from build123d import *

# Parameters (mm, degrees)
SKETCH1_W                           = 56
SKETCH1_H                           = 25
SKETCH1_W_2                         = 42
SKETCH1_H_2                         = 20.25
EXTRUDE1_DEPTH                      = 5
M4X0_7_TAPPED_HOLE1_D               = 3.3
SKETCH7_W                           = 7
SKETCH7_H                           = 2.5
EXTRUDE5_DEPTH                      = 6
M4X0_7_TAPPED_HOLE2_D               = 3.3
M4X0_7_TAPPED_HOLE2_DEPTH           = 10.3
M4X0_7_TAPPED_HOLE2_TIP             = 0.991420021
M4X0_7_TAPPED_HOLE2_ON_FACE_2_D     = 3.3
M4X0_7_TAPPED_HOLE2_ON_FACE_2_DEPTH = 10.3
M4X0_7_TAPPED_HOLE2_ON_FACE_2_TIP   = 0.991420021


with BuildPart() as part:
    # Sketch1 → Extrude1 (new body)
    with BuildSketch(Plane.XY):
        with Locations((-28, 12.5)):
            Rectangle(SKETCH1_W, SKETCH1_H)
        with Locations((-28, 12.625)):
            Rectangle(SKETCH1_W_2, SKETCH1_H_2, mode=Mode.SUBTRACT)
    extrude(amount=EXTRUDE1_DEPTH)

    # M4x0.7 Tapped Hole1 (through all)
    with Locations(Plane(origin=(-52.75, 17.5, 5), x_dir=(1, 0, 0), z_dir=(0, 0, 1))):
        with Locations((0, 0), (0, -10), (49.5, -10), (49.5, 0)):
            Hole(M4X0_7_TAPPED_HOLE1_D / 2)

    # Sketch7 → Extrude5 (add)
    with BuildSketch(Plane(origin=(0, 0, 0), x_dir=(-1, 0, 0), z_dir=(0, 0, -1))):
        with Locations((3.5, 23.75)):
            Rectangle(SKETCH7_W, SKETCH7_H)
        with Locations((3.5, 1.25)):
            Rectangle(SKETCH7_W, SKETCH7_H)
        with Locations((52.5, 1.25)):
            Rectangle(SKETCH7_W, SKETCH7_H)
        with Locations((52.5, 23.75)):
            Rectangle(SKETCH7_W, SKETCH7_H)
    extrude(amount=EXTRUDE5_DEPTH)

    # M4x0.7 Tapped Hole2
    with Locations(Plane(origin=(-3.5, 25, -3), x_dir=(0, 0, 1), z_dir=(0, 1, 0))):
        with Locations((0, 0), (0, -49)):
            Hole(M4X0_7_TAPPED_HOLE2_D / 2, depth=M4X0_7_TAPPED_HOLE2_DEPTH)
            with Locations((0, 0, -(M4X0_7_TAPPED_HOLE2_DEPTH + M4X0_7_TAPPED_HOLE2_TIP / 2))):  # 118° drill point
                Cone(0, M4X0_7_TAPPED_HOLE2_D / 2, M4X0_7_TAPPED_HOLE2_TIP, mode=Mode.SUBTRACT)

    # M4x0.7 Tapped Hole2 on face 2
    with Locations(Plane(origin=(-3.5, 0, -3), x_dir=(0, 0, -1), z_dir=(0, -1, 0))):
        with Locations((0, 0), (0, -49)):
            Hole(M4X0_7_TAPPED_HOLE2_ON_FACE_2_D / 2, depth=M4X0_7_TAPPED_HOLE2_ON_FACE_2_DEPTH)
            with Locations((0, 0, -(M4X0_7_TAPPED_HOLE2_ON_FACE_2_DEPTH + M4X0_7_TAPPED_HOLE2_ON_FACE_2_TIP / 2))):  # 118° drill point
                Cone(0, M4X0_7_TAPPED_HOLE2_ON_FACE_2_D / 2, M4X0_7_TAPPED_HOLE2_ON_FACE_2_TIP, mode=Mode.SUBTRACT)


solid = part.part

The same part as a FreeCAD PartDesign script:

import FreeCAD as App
import Part
import Sketcher
from FreeCAD import Vector

doc = App.newDocument("Part")
body = doc.addObject("PartDesign::Body", "Body")

sketch1 = body.newObject("Sketcher::SketchObject", "Sketch")
sketch1.AttachmentSupport = (doc.getObject("XY_Plane"), [""])
sketch1.MapMode = "FlatFace"
sketch1.addGeometry(Part.LineSegment(Vector(-56, 25, 0), Vector(-56, 0, 0)), False)
sketch1.addGeometry(Part.LineSegment(Vector(-56, 0, 0), Vector(0, 0, 0)), False)
sketch1.addGeometry(Part.LineSegment(Vector(0, 0, 0), Vector(0, 25, 0)), False)
sketch1.addGeometry(Part.LineSegment(Vector(0, 25, 0), Vector(-56, 25, 0)), False)
sketch1.addGeometry(Part.LineSegment(Vector(-7, 2, 0), Vector(-49, 2, 0)), False)
sketch1.addGeometry(Part.LineSegment(Vector(-49, 2, 0), Vector(-49, 23, 0)), False)
sketch1.addGeometry(Part.LineSegment(Vector(-49, 23, 0), Vector(-7, 23, 0)), False)
sketch1.addGeometry(Part.LineSegment(Vector(-7, 23, 0), Vector(-7, 2, 0)), False)
sketch1.addConstraint(Sketcher.Constraint("Coincident", 0, 2, 1, 1))
sketch1.addConstraint(Sketcher.Constraint("Coincident", 1, 2, 2, 1))
sketch1.addConstraint(Sketcher.Constraint("Coincident", 2, 2, 3, 1))
sketch1.addConstraint(Sketcher.Constraint("Coincident", 3, 2, 0, 1))
sketch1.addConstraint(Sketcher.Constraint("Coincident", 4, 2, 5, 1))
sketch1.addConstraint(Sketcher.Constraint("Coincident", 5, 2, 6, 1))
sketch1.addConstraint(Sketcher.Constraint("Coincident", 6, 2, 7, 1))
sketch1.addConstraint(Sketcher.Constraint("Coincident", 7, 2, 4, 1))
sketch1.addConstraint(Sketcher.Constraint("Vertical", 0))
sketch1.addConstraint(Sketcher.Constraint("Horizontal", 1))
sketch1.addConstraint(Sketcher.Constraint("Vertical", 2))
sketch1.addConstraint(Sketcher.Constraint("Horizontal", 3))
sketch1.addConstraint(Sketcher.Constraint("Horizontal", 4))
sketch1.addConstraint(Sketcher.Constraint("Vertical", 5))
sketch1.addConstraint(Sketcher.Constraint("Horizontal", 6))
sketch1.addConstraint(Sketcher.Constraint("Vertical", 7))
sketch1.addConstraint(Sketcher.Constraint("Coincident", 1, 2, -1, 1))
sketch1.addConstraint(Sketcher.Constraint("DistanceX", 1, 1, 1, 2, 56.0))
sketch1.addConstraint(Sketcher.Constraint("DistanceX", 4, 2, 4, 1, 42.0))
sketch1.addConstraint(Sketcher.Constraint("DistanceY", 0, 2, 0, 1, 25.0))
sketch1.addConstraint(Sketcher.Constraint("DistanceX", 4, 2, -1, 1, 49.0))
sketch1.addConstraint(Sketcher.Constraint("DistanceY", 5, 1, 5, 2, 20.25))
sketch1.addConstraint(Sketcher.Constraint("DistanceY", -1, 1, 4, 2, 2.5))
pad1 = body.newObject("PartDesign::Pad", "Pad")
pad1.Profile = sketch1
pad1.Length = 5

sketch2 = body.newObject("Sketcher::SketchObject", "Sketch001")
sketch2.AttachmentSupport = (doc.getObject("XY_Plane"), [""])
sketch2.MapMode = "FlatFace"
sketch2.AttachmentOffset = App.Placement(Vector(0, 0, 5), App.Rotation())
sketch2.addGeometry(Part.Circle(Vector(-52.8, 17.5, 0), Vector(0, 0, 1), 1.6), False)
sketch2.addGeometry(Part.Circle(Vector(-52.8, 7.5, 0), Vector(0, 0, 1), 1.6), False)
sketch2.addGeometry(Part.Circle(Vector(-3.2, 7.5, 0), Vector(0, 0, 1), 1.6), False)
sketch2.addGeometry(Part.Circle(Vector(-3.2, 17.5, 0), Vector(0, 0, 1), 1.6), False)
sketch2.addConstraint(Sketcher.Constraint("Equal", 0, 1))
sketch2.addConstraint(Sketcher.Constraint("Equal", 1, 2))
sketch2.addConstraint(Sketcher.Constraint("Equal", 2, 3))
sketch2.addConstraint(Sketcher.Constraint("Horizontal", 1, 3, 2, 3))
sketch2.addConstraint(Sketcher.Constraint("Horizontal", 0, 3, 3, 3))
sketch2.addConstraint(Sketcher.Constraint("Vertical", 0, 3, 1, 3))
sketch2.addConstraint(Sketcher.Constraint("Vertical", 2, 3, 3, 3))
sketch2.addConstraint(Sketcher.Constraint("Diameter", 0, 3.3))
sketch2.addConstraint(Sketcher.Constraint("DistanceY", 1, 3, 0, 3, 10.0))
sketch2.addConstraint(Sketcher.Constraint("DistanceY", -1, 1, 0, 3, 17.5))
sketch2.addConstraint(Sketcher.Constraint("DistanceX", 1, 3, 2, 3, 49.5))
sketch2.addConstraint(Sketcher.Constraint("DistanceX", 0, 3, -1, 1, 52.75))
doc.recompute()
hole = body.newObject("PartDesign::Hole", "Hole")
hole.Profile = sketch2
hole.ThreadType = "None"
hole.Diameter = 3.3
hole.DepthType = "ThroughAll"

sketch3 = body.newObject("Sketcher::SketchObject", "Sketch002")
sketch3.AttachmentSupport = (doc.getObject("XY_Plane"), [""])
sketch3.MapMode = "FlatFace"
sketch3.addGeometry(Part.LineSegment(Vector(0, 25, 0), Vector(0, 22.5, 0)), False)
sketch3.addGeometry(Part.LineSegment(Vector(0, 22.5, 0), Vector(-7, 22.5, 0)), False)
sketch3.addGeometry(Part.LineSegment(Vector(-7, 22.5, 0), Vector(-7, 25, 0)), False)
sketch3.addGeometry(Part.LineSegment(Vector(-7, 25, 0), Vector(0, 25, 0)), False)
sketch3.addGeometry(Part.LineSegment(Vector(0, 2.5, 0), Vector(0, 0, 0)), False)
sketch3.addGeometry(Part.LineSegment(Vector(0, 0, 0), Vector(-7, 0, 0)), False)
sketch3.addGeometry(Part.LineSegment(Vector(-7, 0, 0), Vector(-7, 2.5, 0)), False)
sketch3.addGeometry(Part.LineSegment(Vector(-7, 2.5, 0), Vector(0, 2.5, 0)), False)
sketch3.addGeometry(Part.LineSegment(Vector(-49, 2.5, 0), Vector(-49, 0, 0)), False)
sketch3.addGeometry(Part.LineSegment(Vector(-49, 0, 0), Vector(-56, 0, 0)), False)
sketch3.addGeometry(Part.LineSegment(Vector(-56, 0, 0), Vector(-56, 2.5, 0)), False)
sketch3.addGeometry(Part.LineSegment(Vector(-56, 2.5, 0), Vector(-49, 2.5, 0)), False)
sketch3.addGeometry(Part.LineSegment(Vector(-49, 25, 0), Vector(-49, 22.5, 0)), False)
sketch3.addGeometry(Part.LineSegment(Vector(-49, 22.5, 0), Vector(-56, 22.5, 0)), False)
sketch3.addGeometry(Part.LineSegment(Vector(-56, 22.5, 0), Vector(-56, 25, 0)), False)
sketch3.addGeometry(Part.LineSegment(Vector(-56, 25, 0), Vector(-49, 25, 0)), False)
sketch3.addConstraint(Sketcher.Constraint("Coincident", 0, 2, 1, 1))
sketch3.addConstraint(Sketcher.Constraint("Coincident", 1, 2, 2, 1))
sketch3.addConstraint(Sketcher.Constraint("Coincident", 2, 2, 3, 1))
sketch3.addConstraint(Sketcher.Constraint("Coincident", 3, 2, 0, 1))
sketch3.addConstraint(Sketcher.Constraint("Coincident", 4, 2, 5, 1))
sketch3.addConstraint(Sketcher.Constraint("Coincident", 5, 2, 6, 1))
sketch3.addConstraint(Sketcher.Constraint("Coincident", 6, 2, 7, 1))
sketch3.addConstraint(Sketcher.Constraint("Coincident", 7, 2, 4, 1))
sketch3.addConstraint(Sketcher.Constraint("Coincident", 8, 2, 9, 1))
sketch3.addConstraint(Sketcher.Constraint("Coincident", 9, 2, 10, 1))
sketch3.addConstraint(Sketcher.Constraint("Coincident", 10, 2, 11, 1))
sketch3.addConstraint(Sketcher.Constraint("Coincident", 11, 2, 8, 1))
sketch3.addConstraint(Sketcher.Constraint("Coincident", 12, 2, 13, 1))
sketch3.addConstraint(Sketcher.Constraint("Coincident", 13, 2, 14, 1))
sketch3.addConstraint(Sketcher.Constraint("Coincident", 14, 2, 15, 1))
sketch3.addConstraint(Sketcher.Constraint("Coincident", 15, 2, 12, 1))
sketch3.addConstraint(Sketcher.Constraint("Vertical", 0))
sketch3.addConstraint(Sketcher.Constraint("Horizontal", 1))
sketch3.addConstraint(Sketcher.Constraint("Vertical", 2))
sketch3.addConstraint(Sketcher.Constraint("Horizontal", 3))
sketch3.addConstraint(Sketcher.Constraint("Vertical", 4))
sketch3.addConstraint(Sketcher.Constraint("Horizontal", 5))
sketch3.addConstraint(Sketcher.Constraint("Vertical", 6))
sketch3.addConstraint(Sketcher.Constraint("Horizontal", 7))
sketch3.addConstraint(Sketcher.Constraint("Vertical", 8))
sketch3.addConstraint(Sketcher.Constraint("Horizontal", 9))
sketch3.addConstraint(Sketcher.Constraint("Vertical", 10))
sketch3.addConstraint(Sketcher.Constraint("Horizontal", 11))
sketch3.addConstraint(Sketcher.Constraint("Vertical", 12))
sketch3.addConstraint(Sketcher.Constraint("Horizontal", 13))
sketch3.addConstraint(Sketcher.Constraint("Vertical", 14))
sketch3.addConstraint(Sketcher.Constraint("Horizontal", 15))
sketch3.addConstraint(Sketcher.Constraint("Coincident", 4, 2, -1, 1))
sketch3.addConstraint(Sketcher.Constraint("PointOnObject", 0, 2, -2))
sketch3.addConstraint(Sketcher.Constraint("PointOnObject", 8, 2, -1))
sketch3.addConstraint(Sketcher.Constraint("Horizontal", 7, 2, 10, 2))
sketch3.addConstraint(Sketcher.Constraint("Horizontal", 1, 2, 12, 2))
sketch3.addConstraint(Sketcher.Constraint("Horizontal", 3, 2, 14, 2))
sketch3.addConstraint(Sketcher.Constraint("Vertical", 2, 2, 5, 2))
sketch3.addConstraint(Sketcher.Constraint("Vertical", 11, 2, 12, 2))
sketch3.addConstraint(Sketcher.Constraint("Vertical", 10, 2, 13, 2))
sketch3.addConstraint(Sketcher.Constraint("Equal", 7, 9))
sketch3.addConstraint(Sketcher.Constraint("Equal", 2, 4))
sketch3.addConstraint(Sketcher.Constraint("DistanceX", 1, 2, 1, 1, 7.0))
sketch3.addConstraint(Sketcher.Constraint("DistanceY", 0, 2, 0, 1, 2.5))
sketch3.addConstraint(Sketcher.Constraint("DistanceY", -1, 1, 2, 2, 25.0))
sketch3.addConstraint(Sketcher.Constraint("DistanceX", 8, 2, -1, 1, 49.0))
pad2 = body.newObject("PartDesign::Pad", "Pad001")
pad2.Profile = sketch3
pad2.Length = 6
pad2.Reversed = True

sketch4 = body.newObject("Sketcher::SketchObject", "Sketch003")
sketch4.AttachmentSupport = (doc.getObject("XZ_Plane"), [""])
sketch4.MapMode = "FlatFace"
sketch4.AttachmentOffset = App.Placement(Vector(0, 0, -25), App.Rotation())
sketch4.addGeometry(Part.Circle(Vector(-3.5, -3, 0), Vector(0, 0, 1), 1.6), False)
sketch4.addGeometry(Part.Circle(Vector(-52.5, -3, 0), Vector(0, 0, 1), 1.6), False)
sketch4.addConstraint(Sketcher.Constraint("Equal", 0, 1))
sketch4.addConstraint(Sketcher.Constraint("Horizontal", 0, 3, 1, 3))
sketch4.addConstraint(Sketcher.Constraint("Diameter", 0, 3.3))
sketch4.addConstraint(Sketcher.Constraint("DistanceY", 0, 3, -1, 1, 3.0))
sketch4.addConstraint(Sketcher.Constraint("DistanceX", 1, 3, 0, 3, 49.0))
sketch4.addConstraint(Sketcher.Constraint("DistanceX", 0, 3, -1, 1, 3.5))
doc.recompute()
hole2 = body.newObject("PartDesign::Hole", "Hole001")
hole2.Profile = sketch4
hole2.ThreadType = "None"
hole2.Diameter = 3.3
hole2.DepthType = "Dimension"
hole2.Depth = 10.3
hole2.DrillPoint = "Angled"
hole2.DrillPointAngle = 118
hole2.Reversed = True

sketch5 = body.newObject("Sketcher::SketchObject", "Sketch004")
sketch5.AttachmentSupport = (doc.getObject("XZ_Plane"), [""])
sketch5.MapMode = "FlatFace"
sketch5.addGeometry(Part.Circle(Vector(-3.5, -3, 0), Vector(0, 0, 1), 1.6), False)
sketch5.addGeometry(Part.Circle(Vector(-52.5, -3, 0), Vector(0, 0, 1), 1.6), False)
sketch5.addConstraint(Sketcher.Constraint("Equal", 0, 1))
sketch5.addConstraint(Sketcher.Constraint("Horizontal", 0, 3, 1, 3))
sketch5.addConstraint(Sketcher.Constraint("Diameter", 0, 3.3))
sketch5.addConstraint(Sketcher.Constraint("DistanceY", 0, 3, -1, 1, 3.0))
sketch5.addConstraint(Sketcher.Constraint("DistanceX", 1, 3, 0, 3, 49.0))
sketch5.addConstraint(Sketcher.Constraint("DistanceX", 0, 3, -1, 1, 3.5))
doc.recompute()
hole3 = body.newObject("PartDesign::Hole", "Hole002")
hole3.Profile = sketch5
hole3.ThreadType = "None"
hole3.Diameter = 3.3
hole3.DepthType = "Dimension"
hole3.Depth = 10.3
hole3.DrillPoint = "Angled"
hole3.DrillPointAngle = 118

doc.recompute()
